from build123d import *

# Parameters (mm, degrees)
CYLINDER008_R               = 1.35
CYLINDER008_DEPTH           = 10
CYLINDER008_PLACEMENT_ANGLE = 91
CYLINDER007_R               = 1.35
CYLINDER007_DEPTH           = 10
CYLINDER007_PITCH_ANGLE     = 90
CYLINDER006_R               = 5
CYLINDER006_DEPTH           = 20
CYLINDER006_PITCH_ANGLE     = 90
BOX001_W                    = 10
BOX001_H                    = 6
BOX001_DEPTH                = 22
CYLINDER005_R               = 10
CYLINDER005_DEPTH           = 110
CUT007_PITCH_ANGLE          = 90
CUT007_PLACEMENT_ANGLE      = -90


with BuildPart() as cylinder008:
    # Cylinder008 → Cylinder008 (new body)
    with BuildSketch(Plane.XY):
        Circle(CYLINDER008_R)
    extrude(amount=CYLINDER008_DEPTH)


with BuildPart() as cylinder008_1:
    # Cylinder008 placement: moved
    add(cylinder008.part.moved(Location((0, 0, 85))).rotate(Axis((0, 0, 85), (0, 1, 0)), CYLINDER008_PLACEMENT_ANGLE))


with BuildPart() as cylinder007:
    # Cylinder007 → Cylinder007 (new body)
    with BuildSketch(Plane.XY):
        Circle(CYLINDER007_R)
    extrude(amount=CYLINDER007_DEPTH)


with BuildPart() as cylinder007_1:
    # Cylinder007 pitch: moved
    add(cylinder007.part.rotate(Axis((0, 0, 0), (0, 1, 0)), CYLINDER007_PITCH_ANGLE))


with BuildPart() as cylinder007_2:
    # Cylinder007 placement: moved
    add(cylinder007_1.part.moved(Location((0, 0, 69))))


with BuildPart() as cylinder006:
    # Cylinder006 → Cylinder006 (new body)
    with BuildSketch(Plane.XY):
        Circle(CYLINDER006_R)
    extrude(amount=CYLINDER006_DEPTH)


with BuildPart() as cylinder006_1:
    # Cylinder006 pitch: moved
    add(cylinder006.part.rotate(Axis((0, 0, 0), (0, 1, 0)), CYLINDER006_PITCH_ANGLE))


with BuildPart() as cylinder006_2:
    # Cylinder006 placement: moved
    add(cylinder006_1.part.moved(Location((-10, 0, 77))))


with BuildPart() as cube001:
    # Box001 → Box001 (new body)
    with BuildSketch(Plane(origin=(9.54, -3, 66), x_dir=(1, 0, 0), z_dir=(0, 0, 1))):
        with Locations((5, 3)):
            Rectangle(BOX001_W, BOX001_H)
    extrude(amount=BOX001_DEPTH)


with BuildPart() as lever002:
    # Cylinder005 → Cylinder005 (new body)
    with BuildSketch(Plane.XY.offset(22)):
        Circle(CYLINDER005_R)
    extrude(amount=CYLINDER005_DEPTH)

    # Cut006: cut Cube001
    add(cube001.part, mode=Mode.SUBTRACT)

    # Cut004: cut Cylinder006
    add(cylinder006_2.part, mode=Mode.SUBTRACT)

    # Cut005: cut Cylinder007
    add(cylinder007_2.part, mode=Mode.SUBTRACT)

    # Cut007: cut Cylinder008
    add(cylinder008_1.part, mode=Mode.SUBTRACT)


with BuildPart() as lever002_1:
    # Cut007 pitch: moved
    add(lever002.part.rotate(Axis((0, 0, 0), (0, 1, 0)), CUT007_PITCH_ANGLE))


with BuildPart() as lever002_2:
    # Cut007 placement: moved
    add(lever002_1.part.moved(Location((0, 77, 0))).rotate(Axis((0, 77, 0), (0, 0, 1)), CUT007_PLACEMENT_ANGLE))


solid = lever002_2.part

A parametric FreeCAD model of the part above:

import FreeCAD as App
import Part
import Sketcher
from FreeCAD import Vector
Q = App.Units.Quantity


def add_polygon(sketch, points):
    """Adds a closed chain of lines whose ends are joined by coincident constraints."""
    first, n = sketch.GeometryCount, len(points)
    for a, b in zip(points, points[1:] + points[:1]):
        sketch.addGeometry(Part.LineSegment(App.Vector(*a, 0), App.Vector(*b, 0)), False)
    for i in range(n):
        sketch.addConstraint(Sketcher.Constraint("Coincident", first + i, 2, first + (i + 1) % n, 1))

doc = App.newDocument("Part")
body = doc.addObject("PartDesign::Body", "Body")

sketch1 = body.newObject("Sketcher::SketchObject", "Sketch")
sketch1.AttachmentSupport = (doc.getObject("XY_Plane"), [""])
sketch1.MapMode = "FlatFace"
sketch1.addGeometry(Part.Circle(Vector(0, 0, 0), Vector(0, 0, 1), 1.4), False)
sketch1.addConstraint(Sketcher.Constraint("Coincident", 0, 3, -1, 1))
sketch1.addConstraint(Sketcher.Constraint("Diameter", 0, Q("2.7 mm")))
pad1 = body.newObject("PartDesign::Pad", "Pad")
pad1.Profile = sketch1
pad1.Length = 10
body2 = doc.addObject("PartDesign::Body", "Body001")
doc.recompute()

body.Placement = App.Placement(Vector(0, 0, 85), App.Rotation(Vector(0, 1, 0), 91))
boolean = body2.newObject("PartDesign::Boolean", "Boolean")
boolean.Type = "Fuse"
boolean.addObjects([body])
body3 = doc.addObject("PartDesign::Body", "Body002")

sketch2 = body3.newObject("Sketcher::SketchObject", "Sketch001")
sketch2.AttachmentSupport = (doc.getObject("XY_Plane002"), [""])
sketch2.MapMode = "FlatFace"
sketch2.addGeometry(Part.Circle(Vector(0, 0, 0), Vector(0, 0, 1), 1.4), False)
sketch2.addConstraint(Sketcher.Constraint("Coincident", 0, 3, -1, 1))
sketch2.addConstraint(Sketcher.Constraint("Diameter", 0, Q("2.7 mm")))
pad2 = body3.newObject("PartDesign::Pad", "Pad001")
pad2.Profile = sketch2
pad2.Length = 10
body4 = doc.addObject("PartDesign::Body", "Body003")
doc.recompute()

body3.Placement = App.Placement(Vector(0, 0, 0), App.Rotation(Vector(0, 1, 0), 90))
boolean2 = body4.newObject("PartDesign::Boolean", "Boolean001")
boolean2.Type = "Fuse"
boolean2.addObjects([body3])
body5 = doc.addObject("PartDesign::Body", "Body004")
doc.recompute()

body4.Placement = App.Placement(Vector(0, 0, 69), App.Rotation(Vector(0, 0, 1), 0))
boolean3 = body5.newObject("PartDesign::Boolean", "Boolean002")
boolean3.Type = "Fuse"
boolean3.addObjects([body4])
body6 = doc.addObject("PartDesign::Body", "Body005")

sketch3 = body6.newObject("Sketcher::SketchObject", "Sketch002")
sketch3.AttachmentSupport = (doc.getObject("XY_Plane005"), [""])
sketch3.MapMode = "FlatFace"
sketch3.addGeometry(Part.Circle(Vector(0, 0, 0), Vector(0, 0, 1), 5), False)
sketch3.addConstraint(Sketcher.Constraint("Coincident", 0, 3, -1, 1))
sketch3.addConstraint(Sketcher.Constraint("Diameter", 0, Q("10 mm")))
pad3 = body6.newObject("PartDesign::Pad", "Pad002")
pad3.Profile = sketch3
pad3.Length = 20
body7 = doc.addObject("PartDesign::Body", "Body006")
doc.recompute()

body6.Placement = App.Placement(Vector(0, 0, 0), App.Rotation(Vector(0, 1, 0), 90))
boolean4 = body7.newObject("PartDesign::Boolean", "Boolean003")
boolean4.Type = "Fuse"
boolean4.addObjects([body6])
body8 = doc.addObject("PartDesign::Body", "Body007")
doc.recompute()

body7.Placement = App.Placement(Vector(-10, 0, 77), App.Rotation(Vector(0, 0, 1), 0))
boolean5 = body8.newObject("PartDesign::Boolean", "Boolean004")
boolean5.Type = "Fuse"
boolean5.addObjects([body7])
body9 = doc.addObject("PartDesign::Body", "Body008")

sketch4 = body9.newObject("Sketcher::SketchObject", "Sketch003")
sketch4.AttachmentSupport = (doc.getObject("XY_Plane008"), [""])
sketch4.MapMode = "FlatFace"
sketch4.AttachmentOffset = App.Placement(Vector(0, 0, 66), App.Rotation())
add_polygon(sketch4, [(10, 3), (10, -3), (20, -3), (20, 3)])
sketch4.addConstraint(Sketcher.Constraint("Vertical", 0))
sketch4.addConstraint(Sketcher.Constraint("Horizontal", 1))
sketch4.addConstraint(Sketcher.Constraint("Vertical", 2))
sketch4.addConstraint(Sketcher.Constraint("Horizontal", 3))
sketch4.addConstraint(Sketcher.Constraint("DistanceX", 1, 1, 1, 2, Q("10 mm")))
sketch4.addConstraint(Sketcher.Constraint("DistanceY", 0, 2, 0, 1, Q("6 mm")))
sketch4.addConstraint(Sketcher.Constraint("DistanceY", 0, 2, -1, 1, Q("3 mm")))
sketch4.addConstraint(Sketcher.Constraint("DistanceX", -1, 1, 0, 2, Q("9.54 mm")))
pad4 = body9.newObject("PartDesign::Pad", "Pad003")
pad4.Profile = sketch4
pad4.Length = 22
body10 = doc.addObject("PartDesign::Body", "Body009")

sketch5 = body10.newObject("Sketcher::SketchObject", "Sketch004")
sketch5.AttachmentSupport = (doc.getObject("XY_Plane009"), [""])
sketch5.MapMode = "FlatFace"
sketch5.AttachmentOffset = App.Placement(Vector(0, 0, 22), App.Rotation())
sketch5.addGeometry(Part.Circle(Vector(0, 0, 0), Vector(0, 0, 1), 10), False)
sketch5.addConstraint(Sketcher.Constraint("Coincident", 0, 3, -1, 1))
sketch5.addConstraint(Sketcher.Constraint("Diameter", 0, Q("20 mm")))
pad5 = body10.newObject("PartDesign::Pad", "Pad004")
pad5.Profile = sketch5
pad5.Length = 110
doc.recompute()

boolean6 = body10.newObject("PartDesign::Boolean", "Boolean005")
boolean6.Type = "Cut"
boolean6.addObjects([body9])
doc.recompute()

boolean7 = body10.newObject("PartDesign::Boolean", "Boolean006")
boolean7.Type = "Cut"
boolean7.addObjects([body8])
doc.recompute()

boolean8 = body10.newObject("PartDesign::Boolean", "Boolean007")
boolean8.Type = "Cut"
boolean8.addObjects([body5])
doc.recompute()

boolean9 = body10.newObject("PartDesign::Boolean", "Boolean008")
boolean9.Type = "Cut"
boolean9.addObjects([body2])
body11 = doc.addObject("PartDesign::Body", "Body010")
doc.recompute()

body10.Placement = App.Placement(Vector(0, 0, 0), App.Rotation(Vector(0, 1, 0), 90))
boolean10 = body11.newObject("PartDesign::Boolean", "Boolean009")
boolean10.Type = "Fuse"
boolean10.addObjects([body10])
body12 = doc.addObject("PartDesign::Body", "Body011")
doc.recompute()

body11.Placement = App.Placement(Vector(0, 77, 0), App.Rotation(Vector(0, 0, 1), 270))
boolean11 = body12.newObject("PartDesign::Boolean", "Boolean010")
boolean11.Type = "Fuse"
boolean11.addObjects([body11])

doc.recompute()
